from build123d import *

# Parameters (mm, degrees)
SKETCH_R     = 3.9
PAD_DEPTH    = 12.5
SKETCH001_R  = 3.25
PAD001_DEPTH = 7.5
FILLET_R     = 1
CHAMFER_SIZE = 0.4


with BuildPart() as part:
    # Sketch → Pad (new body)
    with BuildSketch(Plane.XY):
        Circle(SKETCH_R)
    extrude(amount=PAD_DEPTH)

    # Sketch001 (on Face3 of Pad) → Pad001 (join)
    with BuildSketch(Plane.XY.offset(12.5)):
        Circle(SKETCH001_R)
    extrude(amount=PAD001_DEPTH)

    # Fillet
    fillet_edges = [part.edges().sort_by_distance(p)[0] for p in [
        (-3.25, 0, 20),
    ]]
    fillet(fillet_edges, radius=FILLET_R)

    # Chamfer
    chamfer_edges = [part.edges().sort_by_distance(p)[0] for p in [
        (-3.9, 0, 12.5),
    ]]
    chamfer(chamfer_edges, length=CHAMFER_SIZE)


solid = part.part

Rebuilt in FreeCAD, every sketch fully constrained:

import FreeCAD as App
import Part
import Sketcher
from FreeCAD import Vector


def edges_at(feature, points):
    """Names of the edges that pass closest to the given points."""
    edges = feature.Shape.Edges
    near = lambda p: min(range(len(edges)), key=lambda i: edges[i].distToShape(Part.Vertex(*p))[0])
    return sorted({f"Edge{near(p) + 1}" for p in points})

doc = App.newDocument("Part")
body = doc.addObject("PartDesign::Body", "Body")

sketch1 = doc.addObject("Sketcher::SketchObject", "Sketch")
body.addObject(sketch1)
sketch1.AttachmentSupport = (doc.XY_Plane, [""])
sketch1.MapMode = "FlatFace"
sketch1.addGeometry(Part.Circle(Vector(0, 0, 0), Vector(0, 0, 1), 3.9), False)
sketch1.addConstraint([
    Sketcher.Constraint("Coincident", 0, 3, -1, 1),
    Sketcher.Constraint("Diameter", 0, 7.8),
])
pad1 = doc.addObject("PartDesign::Pad", "Pad")
body.addObject(pad1)
pad1.Profile = sketch1
pad1.Length = 12.5

sketch2 = doc.addObject("Sketcher::SketchObject", "Sketch001")
body.addObject(sketch2)
sketch2.AttachmentSupport = (doc.XY_Plane, [""])
sketch2.MapMode = "FlatFace"
sketch2.AttachmentOffset = App.Placement(Vector(0, 0, 12.5), App.Rotation())
sketch2.addGeometry(Part.Circle(Vector(0, 0, 0), Vector(0, 0, 1), 3.2), False)
sketch2.addConstraint([
    Sketcher.Constraint("Coincident", 0, 3, -1, 1),
    Sketcher.Constraint("Diameter", 0, 6.5),
])
pad2 = doc.addObject("PartDesign::Pad", "Pad001")
body.addObject(pad2)
pad2.Profile = sketch2
pad2.Length = 7.5
doc.recompute()

fillet = doc.addObject("PartDesign::Fillet", "Fillet")
body.addObject(fillet)
fillet.Base = (pad2, edges_at(pad2, [(-3.25, 0, 20)]))
fillet.Radius = 1
doc.recompute()

chamfer = doc.addObject("PartDesign::Chamfer", "Chamfer")
body.addObject(chamfer)
chamfer.Base = (fillet, edges_at(fillet, [(-3.9, 0, 12.5)]))
chamfer.Size = 0.4

doc.recompute()
